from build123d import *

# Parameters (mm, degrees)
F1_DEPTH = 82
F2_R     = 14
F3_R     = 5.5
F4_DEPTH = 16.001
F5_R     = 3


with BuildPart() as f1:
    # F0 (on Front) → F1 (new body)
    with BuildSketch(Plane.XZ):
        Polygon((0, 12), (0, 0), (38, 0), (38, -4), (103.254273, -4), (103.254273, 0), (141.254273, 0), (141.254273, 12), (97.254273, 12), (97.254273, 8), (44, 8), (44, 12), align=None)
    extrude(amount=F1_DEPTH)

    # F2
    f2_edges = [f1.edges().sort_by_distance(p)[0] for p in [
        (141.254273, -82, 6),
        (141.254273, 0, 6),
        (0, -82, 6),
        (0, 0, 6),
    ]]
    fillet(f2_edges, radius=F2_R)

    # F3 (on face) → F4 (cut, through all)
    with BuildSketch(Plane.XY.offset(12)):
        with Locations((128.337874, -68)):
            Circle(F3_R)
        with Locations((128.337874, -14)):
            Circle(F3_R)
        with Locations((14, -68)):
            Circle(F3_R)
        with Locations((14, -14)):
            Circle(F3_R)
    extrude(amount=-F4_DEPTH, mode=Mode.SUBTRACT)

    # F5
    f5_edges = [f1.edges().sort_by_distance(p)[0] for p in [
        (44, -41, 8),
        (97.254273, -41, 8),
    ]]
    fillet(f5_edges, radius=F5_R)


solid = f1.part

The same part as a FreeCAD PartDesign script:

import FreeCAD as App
import Part
import Sketcher
from FreeCAD import Vector
Q = App.Units.Quantity


def edges_at(feature, points):
    """Names of the edges that pass closest to the given points."""
    edges = feature.Shape.Edges
    near = lambda p: min(range(len(edges)), key=lambda i: edges[i].distToShape(Part.Vertex(*p))[0])
    return sorted({f"Edge{near(p) + 1}" for p in points})

doc = App.newDocument("Part")
body = doc.addObject("PartDesign::Body", "Body")

# Sketch on XZ plane
sketch1 = doc.addObject("Sketcher::SketchObject", "Sketch")
body.addObject(sketch1)
sketch1.AttachmentSupport = (doc.XZ_Plane, [""])
sketch1.MapMode = "FlatFace"
sketch1.addGeometry(Part.LineSegment(Vector(0, 12, 0), Vector(0, 0, 0)), False)
sketch1.addGeometry(Part.LineSegment(Vector(0, 0, 0), Vector(38, 0, 0)), False)
sketch1.addGeometry(Part.LineSegment(Vector(38, 0, 0), Vector(38, -4, 0)), False)
sketch1.addGeometry(Part.LineSegment(Vector(38, -4, 0), Vector(103.3, -4, 0)), False)
sketch1.addGeometry(Part.LineSegment(Vector(103.3, -4, 0), Vector(103.3, 0, 0)), False)
sketch1.addGeometry(Part.LineSegment(Vector(103.3, 0, 0), Vector(141.3, 0, 0)), False)
sketch1.addGeometry(Part.LineSegment(Vector(141.3, 0, 0), Vector(141.3, 12, 0)), False)
sketch1.addGeometry(Part.LineSegment(Vector(141.3, 12, 0), Vector(97.3, 12, 0)), False)
sketch1.addGeometry(Part.LineSegment(Vector(97.3, 12, 0), Vector(97.3, 8, 0)), False)
sketch1.addGeometry(Part.LineSegment(Vector(97.3, 8, 0), Vector(44, 8, 0)), False)
sketch1.addGeometry(Part.LineSegment(Vector(44, 8, 0), Vector(44, 12, 0)), False)
sketch1.addGeometry(Part.LineSegment(Vector(44, 12, 0), Vector(0, 12, 0)), False)
sketch1.addConstraint(Sketcher.Constraint("Coincident", 0, 2, 1, 1))
sketch1.addConstraint(Sketcher.Constraint("Coincident", 1, 2, 2, 1))
sketch1.addConstraint(Sketcher.Constraint("Coincident", 2, 2, 3, 1))
sketch1.addConstraint(Sketcher.Constraint("Coincident", 3, 2, 4, 1))
sketch1.addConstraint(Sketcher.Constraint("Coincident", 4, 2, 5, 1))
sketch1.addConstraint(Sketcher.Constraint("Coincident", 5, 2, 6, 1))
sketch1.addConstraint(Sketcher.Constraint("Coincident", 6, 2, 7, 1))
sketch1.addConstraint(Sketcher.Constraint("Coincident", 7, 2, 8, 1))
sketch1.addConstraint(Sketcher.Constraint("Coincident", 8, 2, 9, 1))
sketch1.addConstraint(Sketcher.Constraint("Coincident", 9, 2, 10, 1))
sketch1.addConstraint(Sketcher.Constraint("Coincident", 10, 2, 11, 1))
sketch1.addConstraint(Sketcher.Constraint("Coincident", 11, 2, 0, 1))
sketch1.addConstraint(Sketcher.Constraint("Vertical", 0))
sketch1.addConstraint(Sketcher.Constraint("Horizontal", 1))
sketch1.addConstraint(Sketcher.Constraint("Vertical", 2))
sketch1.addConstraint(Sketcher.Constraint("Horizontal", 3))
sketch1.addConstraint(Sketcher.Constraint("Vertical", 4))
sketch1.addConstraint(Sketcher.Constraint("Horizontal", 5))
sketch1.addConstraint(Sketcher.Constraint("Vertical", 6))
sketch1.addConstraint(Sketcher.Constraint("Horizontal", 7))
sketch1.addConstraint(Sketcher.Constraint("Vertical", 8))
sketch1.addConstraint(Sketcher.Constraint("Horizontal", 9))
sketch1.addConstraint(Sketcher.Constraint("Vertical", 10))
sketch1.addConstraint(Sketcher.Constraint("Horizontal", 11))
sketch1.addConstraint(Sketcher.Constraint("Coincident", 0, 2, -1, 1))
sketch1.addConstraint(Sketcher.Constraint("PointOnObject", 4, 2, -1))
sketch1.addConstraint(Sketcher.Constraint("Horizontal", 7, 2, 10, 2))
sketch1.addConstraint(Sketcher.Constraint("Equal", 1, 5))
sketch1.addConstraint(Sketcher.Constraint("Equal", 7, 11))
sketch1.addConstraint(Sketcher.Constraint("Equal", 4, 8))
sketch1.addConstraint(Sketcher.Constraint("DistanceX", 1, 1, 1, 2, Q("38 mm")))
sketch1.addConstraint(Sketcher.Constraint("DistanceX", 7, 2, 7, 1, Q("44 mm")))
sketch1.addConstraint(Sketcher.Constraint("DistanceY", 0, 2, 0, 1, Q("12 mm")))
sketch1.addConstraint(Sketcher.Constraint("DistanceY", 2, 2, 2, 1, Q("4 mm")))
sketch1.addConstraint(Sketcher.Constraint("DistanceX", 3, 1, 3, 2, Q("65.254273 mm")))
pad1 = doc.addObject("PartDesign::Pad", "Pad")
body.addObject(pad1)
pad1.Profile = sketch1
pad1.Length = 82
doc.recompute()

fillet = doc.addObject("PartDesign::Fillet", "Fillet")
body.addObject(fillet)
fillet.Base = (pad1, edges_at(pad1, [
    (141.254, -82, 6),
    (141.254, 0, 6),
    (0, -82, 6),
    (0, 0, 6),
]))
fillet.Radius = 14

# Sketch on XY plane
sketch2 = doc.addObject("Sketcher::SketchObject", "Sketch001")
body.addObject(sketch2)
sketch2.AttachmentSupport = (doc.XY_Plane, [""])
sketch2.MapMode = "FlatFace"
sketch2.AttachmentOffset = App.Placement(Vector(0, 0, 12), App.Rotation())
sketch2.addGeometry(Part.Circle(Vector(128, -68, 0), Vector(0, 0, 1), 6), False)
sketch2.addGeometry(Part.Circle(Vector(128, -14, 0), Vector(0, 0, 1), 6), False)
sketch2.addGeometry(Part.Circle(Vector(14, -68, 0), Vector(0, 0, 1), 6), False)
sketch2.addGeometry(Part.Circle(Vector(14, -14, 0), Vector(0, 0, 1), 6), False)
sketch2.addConstraint(Sketcher.Constraint("Equal", 0, 1))
sketch2.addConstraint(Sketcher.Constraint("Equal", 1, 2))
sketch2.addConstraint(Sketcher.Constraint("Equal", 2, 3))
sketch2.addConstraint(Sketcher.Constraint("Horizontal", 0, 3, 2, 3))
sketch2.addConstraint(Sketcher.Constraint("Horizontal", 1, 3, 3, 3))
sketch2.addConstraint(Sketcher.Constraint("Vertical", 0, 3, 1, 3))
sketch2.addConstraint(Sketcher.Constraint("Vertical", 2, 3, 3, 3))
sketch2.addConstraint(Sketcher.Constraint("Diameter", 0, Q("11 mm")))
sketch2.addConstraint(Sketcher.Constraint("DistanceY", 0, 3, -1, 1, Q("68 mm")))
sketch2.addConstraint(Sketcher.Constraint("DistanceY", 1, 3, -1, 1, Q("14 mm")))
sketch2.addConstraint(Sketcher.Constraint("DistanceX", -1, 1, 2, 3, Q("14 mm")))
sketch2.addConstraint(Sketcher.Constraint("DistanceX", -1, 1, 0, 3, Q("128.337874 mm")))
pocket1 = doc.addObject("PartDesign::Pocket", "Pocket")
body.addObject(pocket1)
pocket1.Profile = sketch2
pocket1.Type = "ThroughAll"
doc.recompute()

fillet2 = doc.addObject("PartDesign::Fillet", "Fillet001")
body.addObject(fillet2)
fillet2.Base = (pocket1, edges_at(pocket1, [(44, -41, 8), (97.254, -41, 8)]))
fillet2.Radius = 3

doc.recompute()
